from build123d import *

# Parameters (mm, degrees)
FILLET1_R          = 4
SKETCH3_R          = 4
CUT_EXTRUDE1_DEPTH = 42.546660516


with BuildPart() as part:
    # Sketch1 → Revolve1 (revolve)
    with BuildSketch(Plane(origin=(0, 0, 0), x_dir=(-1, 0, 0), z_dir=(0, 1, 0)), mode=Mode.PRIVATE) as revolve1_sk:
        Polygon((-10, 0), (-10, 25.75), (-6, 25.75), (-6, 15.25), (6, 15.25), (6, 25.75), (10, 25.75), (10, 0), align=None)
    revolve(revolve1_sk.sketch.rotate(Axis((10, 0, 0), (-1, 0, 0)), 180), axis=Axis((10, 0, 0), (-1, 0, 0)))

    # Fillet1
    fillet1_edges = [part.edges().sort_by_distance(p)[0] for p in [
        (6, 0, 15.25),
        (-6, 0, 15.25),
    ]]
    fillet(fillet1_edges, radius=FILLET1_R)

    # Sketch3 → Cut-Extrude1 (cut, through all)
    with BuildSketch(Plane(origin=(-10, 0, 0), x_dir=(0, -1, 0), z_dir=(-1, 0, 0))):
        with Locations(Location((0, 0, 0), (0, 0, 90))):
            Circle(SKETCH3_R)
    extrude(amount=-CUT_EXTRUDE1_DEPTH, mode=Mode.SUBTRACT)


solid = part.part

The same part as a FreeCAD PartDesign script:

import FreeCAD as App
import Part
import Sketcher

V = App.Vector


def edges_at(feature, points):
    """Names of the edges that pass closest to the given points."""
    edges = feature.Shape.Edges
    near = lambda p: min(range(len(edges)), key=lambda i: edges[i].distToShape(Part.Vertex(*p))[0])
    return sorted({f"Edge{near(p) + 1}" for p in points})


def add_polygon(sketch, points):
    """Adds a closed chain of lines whose ends are joined by coincident constraints."""
    first, n = sketch.GeometryCount, len(points)
    for a, b in zip(points, points[1:] + points[:1]):
        sketch.addGeometry(Part.LineSegment(App.Vector(*a, 0), App.Vector(*b, 0)), False)
    for i in range(n):
        sketch.addConstraint(Sketcher.Constraint("Coincident", first + i, 2, first + (i + 1) % n, 1))

doc = App.newDocument("Part")
body = doc.addObject("PartDesign::Body", "Body")

# Sketch on XZ plane
sketch1 = body.newObject("Sketcher::SketchObject", "Sketch")
sketch1.AttachmentSupport = (doc.getObject("XZ_Plane"), [""])
sketch1.MapMode = "FlatFace"
add_polygon(sketch1, [(10, 25.8), (10, 0), (-10, 0), (-10, 25.8), (-6, 25.8), (-6, 15.2), (6, 15.2), (6, 25.8)])  # lines 0-7
sketch1.addConstraint([
    Sketcher.Constraint("Vertical", 0),
    Sketcher.Constraint("Horizontal", 1),
    Sketcher.Constraint("Vertical", 2),
    Sketcher.Constraint("Horizontal", 3),
    Sketcher.Constraint("Vertical", 4),
    Sketcher.Constraint("Horizontal", 5),
    Sketcher.Constraint("Vertical", 6),
    Sketcher.Constraint("Horizontal", 7),
    Sketcher.Constraint("Symmetric", 0, 2, 1, 2, -1, 1),
    Sketcher.Constraint("Symmetric", 3, 2, 6, 2, -2),
    Sketcher.Constraint("DistanceX", 1, 2, 1, 1, 20.0),
    Sketcher.Constraint("DistanceX", 3, 1, 3, 2, 4.0),
    Sketcher.Constraint("DistanceY", 4, 2, 4, 1, 10.5),
    Sketcher.Constraint("DistanceY", 0, 2, 0, 1, 25.75),
])
revolution = body.newObject("PartDesign::Revolution", "Revolution")
revolution.Profile = sketch1
revolution.ReferenceAxis = (sketch1, ["H_Axis"])
revolution.Angle = 360
doc.recompute()

fillet = body.newObject("PartDesign::Fillet", "Fillet")
fillet.Base = (revolution, edges_at(revolution, [(6, 0, 15.25), (-6, 0, 15.25)]))
fillet.Radius = 4

# Sketch on YZ plane
sketch2 = body.newObject("Sketcher::SketchObject", "Sketch001")
sketch2.AttachmentSupport = (doc.getObject("YZ_Plane"), [""])
sketch2.MapMode = "FlatFace"
sketch2.AttachmentOffset = App.Placement(V(0, 0, -10), App.Rotation())
sketch2.addGeometry(Part.Circle(V(0, 0, 0), V(0, 0, 1), 4), False)
sketch2.addConstraint([
    Sketcher.Constraint("Coincident", 0, 3, -1, 1),
    Sketcher.Constraint("Diameter", 0, 8.0),
])
pocket1 = body.newObject("PartDesign::Pocket", "Pocket")
pocket1.Profile = sketch2
pocket1.Type = "ThroughAll"
pocket1.Reversed = True

doc.recompute()
